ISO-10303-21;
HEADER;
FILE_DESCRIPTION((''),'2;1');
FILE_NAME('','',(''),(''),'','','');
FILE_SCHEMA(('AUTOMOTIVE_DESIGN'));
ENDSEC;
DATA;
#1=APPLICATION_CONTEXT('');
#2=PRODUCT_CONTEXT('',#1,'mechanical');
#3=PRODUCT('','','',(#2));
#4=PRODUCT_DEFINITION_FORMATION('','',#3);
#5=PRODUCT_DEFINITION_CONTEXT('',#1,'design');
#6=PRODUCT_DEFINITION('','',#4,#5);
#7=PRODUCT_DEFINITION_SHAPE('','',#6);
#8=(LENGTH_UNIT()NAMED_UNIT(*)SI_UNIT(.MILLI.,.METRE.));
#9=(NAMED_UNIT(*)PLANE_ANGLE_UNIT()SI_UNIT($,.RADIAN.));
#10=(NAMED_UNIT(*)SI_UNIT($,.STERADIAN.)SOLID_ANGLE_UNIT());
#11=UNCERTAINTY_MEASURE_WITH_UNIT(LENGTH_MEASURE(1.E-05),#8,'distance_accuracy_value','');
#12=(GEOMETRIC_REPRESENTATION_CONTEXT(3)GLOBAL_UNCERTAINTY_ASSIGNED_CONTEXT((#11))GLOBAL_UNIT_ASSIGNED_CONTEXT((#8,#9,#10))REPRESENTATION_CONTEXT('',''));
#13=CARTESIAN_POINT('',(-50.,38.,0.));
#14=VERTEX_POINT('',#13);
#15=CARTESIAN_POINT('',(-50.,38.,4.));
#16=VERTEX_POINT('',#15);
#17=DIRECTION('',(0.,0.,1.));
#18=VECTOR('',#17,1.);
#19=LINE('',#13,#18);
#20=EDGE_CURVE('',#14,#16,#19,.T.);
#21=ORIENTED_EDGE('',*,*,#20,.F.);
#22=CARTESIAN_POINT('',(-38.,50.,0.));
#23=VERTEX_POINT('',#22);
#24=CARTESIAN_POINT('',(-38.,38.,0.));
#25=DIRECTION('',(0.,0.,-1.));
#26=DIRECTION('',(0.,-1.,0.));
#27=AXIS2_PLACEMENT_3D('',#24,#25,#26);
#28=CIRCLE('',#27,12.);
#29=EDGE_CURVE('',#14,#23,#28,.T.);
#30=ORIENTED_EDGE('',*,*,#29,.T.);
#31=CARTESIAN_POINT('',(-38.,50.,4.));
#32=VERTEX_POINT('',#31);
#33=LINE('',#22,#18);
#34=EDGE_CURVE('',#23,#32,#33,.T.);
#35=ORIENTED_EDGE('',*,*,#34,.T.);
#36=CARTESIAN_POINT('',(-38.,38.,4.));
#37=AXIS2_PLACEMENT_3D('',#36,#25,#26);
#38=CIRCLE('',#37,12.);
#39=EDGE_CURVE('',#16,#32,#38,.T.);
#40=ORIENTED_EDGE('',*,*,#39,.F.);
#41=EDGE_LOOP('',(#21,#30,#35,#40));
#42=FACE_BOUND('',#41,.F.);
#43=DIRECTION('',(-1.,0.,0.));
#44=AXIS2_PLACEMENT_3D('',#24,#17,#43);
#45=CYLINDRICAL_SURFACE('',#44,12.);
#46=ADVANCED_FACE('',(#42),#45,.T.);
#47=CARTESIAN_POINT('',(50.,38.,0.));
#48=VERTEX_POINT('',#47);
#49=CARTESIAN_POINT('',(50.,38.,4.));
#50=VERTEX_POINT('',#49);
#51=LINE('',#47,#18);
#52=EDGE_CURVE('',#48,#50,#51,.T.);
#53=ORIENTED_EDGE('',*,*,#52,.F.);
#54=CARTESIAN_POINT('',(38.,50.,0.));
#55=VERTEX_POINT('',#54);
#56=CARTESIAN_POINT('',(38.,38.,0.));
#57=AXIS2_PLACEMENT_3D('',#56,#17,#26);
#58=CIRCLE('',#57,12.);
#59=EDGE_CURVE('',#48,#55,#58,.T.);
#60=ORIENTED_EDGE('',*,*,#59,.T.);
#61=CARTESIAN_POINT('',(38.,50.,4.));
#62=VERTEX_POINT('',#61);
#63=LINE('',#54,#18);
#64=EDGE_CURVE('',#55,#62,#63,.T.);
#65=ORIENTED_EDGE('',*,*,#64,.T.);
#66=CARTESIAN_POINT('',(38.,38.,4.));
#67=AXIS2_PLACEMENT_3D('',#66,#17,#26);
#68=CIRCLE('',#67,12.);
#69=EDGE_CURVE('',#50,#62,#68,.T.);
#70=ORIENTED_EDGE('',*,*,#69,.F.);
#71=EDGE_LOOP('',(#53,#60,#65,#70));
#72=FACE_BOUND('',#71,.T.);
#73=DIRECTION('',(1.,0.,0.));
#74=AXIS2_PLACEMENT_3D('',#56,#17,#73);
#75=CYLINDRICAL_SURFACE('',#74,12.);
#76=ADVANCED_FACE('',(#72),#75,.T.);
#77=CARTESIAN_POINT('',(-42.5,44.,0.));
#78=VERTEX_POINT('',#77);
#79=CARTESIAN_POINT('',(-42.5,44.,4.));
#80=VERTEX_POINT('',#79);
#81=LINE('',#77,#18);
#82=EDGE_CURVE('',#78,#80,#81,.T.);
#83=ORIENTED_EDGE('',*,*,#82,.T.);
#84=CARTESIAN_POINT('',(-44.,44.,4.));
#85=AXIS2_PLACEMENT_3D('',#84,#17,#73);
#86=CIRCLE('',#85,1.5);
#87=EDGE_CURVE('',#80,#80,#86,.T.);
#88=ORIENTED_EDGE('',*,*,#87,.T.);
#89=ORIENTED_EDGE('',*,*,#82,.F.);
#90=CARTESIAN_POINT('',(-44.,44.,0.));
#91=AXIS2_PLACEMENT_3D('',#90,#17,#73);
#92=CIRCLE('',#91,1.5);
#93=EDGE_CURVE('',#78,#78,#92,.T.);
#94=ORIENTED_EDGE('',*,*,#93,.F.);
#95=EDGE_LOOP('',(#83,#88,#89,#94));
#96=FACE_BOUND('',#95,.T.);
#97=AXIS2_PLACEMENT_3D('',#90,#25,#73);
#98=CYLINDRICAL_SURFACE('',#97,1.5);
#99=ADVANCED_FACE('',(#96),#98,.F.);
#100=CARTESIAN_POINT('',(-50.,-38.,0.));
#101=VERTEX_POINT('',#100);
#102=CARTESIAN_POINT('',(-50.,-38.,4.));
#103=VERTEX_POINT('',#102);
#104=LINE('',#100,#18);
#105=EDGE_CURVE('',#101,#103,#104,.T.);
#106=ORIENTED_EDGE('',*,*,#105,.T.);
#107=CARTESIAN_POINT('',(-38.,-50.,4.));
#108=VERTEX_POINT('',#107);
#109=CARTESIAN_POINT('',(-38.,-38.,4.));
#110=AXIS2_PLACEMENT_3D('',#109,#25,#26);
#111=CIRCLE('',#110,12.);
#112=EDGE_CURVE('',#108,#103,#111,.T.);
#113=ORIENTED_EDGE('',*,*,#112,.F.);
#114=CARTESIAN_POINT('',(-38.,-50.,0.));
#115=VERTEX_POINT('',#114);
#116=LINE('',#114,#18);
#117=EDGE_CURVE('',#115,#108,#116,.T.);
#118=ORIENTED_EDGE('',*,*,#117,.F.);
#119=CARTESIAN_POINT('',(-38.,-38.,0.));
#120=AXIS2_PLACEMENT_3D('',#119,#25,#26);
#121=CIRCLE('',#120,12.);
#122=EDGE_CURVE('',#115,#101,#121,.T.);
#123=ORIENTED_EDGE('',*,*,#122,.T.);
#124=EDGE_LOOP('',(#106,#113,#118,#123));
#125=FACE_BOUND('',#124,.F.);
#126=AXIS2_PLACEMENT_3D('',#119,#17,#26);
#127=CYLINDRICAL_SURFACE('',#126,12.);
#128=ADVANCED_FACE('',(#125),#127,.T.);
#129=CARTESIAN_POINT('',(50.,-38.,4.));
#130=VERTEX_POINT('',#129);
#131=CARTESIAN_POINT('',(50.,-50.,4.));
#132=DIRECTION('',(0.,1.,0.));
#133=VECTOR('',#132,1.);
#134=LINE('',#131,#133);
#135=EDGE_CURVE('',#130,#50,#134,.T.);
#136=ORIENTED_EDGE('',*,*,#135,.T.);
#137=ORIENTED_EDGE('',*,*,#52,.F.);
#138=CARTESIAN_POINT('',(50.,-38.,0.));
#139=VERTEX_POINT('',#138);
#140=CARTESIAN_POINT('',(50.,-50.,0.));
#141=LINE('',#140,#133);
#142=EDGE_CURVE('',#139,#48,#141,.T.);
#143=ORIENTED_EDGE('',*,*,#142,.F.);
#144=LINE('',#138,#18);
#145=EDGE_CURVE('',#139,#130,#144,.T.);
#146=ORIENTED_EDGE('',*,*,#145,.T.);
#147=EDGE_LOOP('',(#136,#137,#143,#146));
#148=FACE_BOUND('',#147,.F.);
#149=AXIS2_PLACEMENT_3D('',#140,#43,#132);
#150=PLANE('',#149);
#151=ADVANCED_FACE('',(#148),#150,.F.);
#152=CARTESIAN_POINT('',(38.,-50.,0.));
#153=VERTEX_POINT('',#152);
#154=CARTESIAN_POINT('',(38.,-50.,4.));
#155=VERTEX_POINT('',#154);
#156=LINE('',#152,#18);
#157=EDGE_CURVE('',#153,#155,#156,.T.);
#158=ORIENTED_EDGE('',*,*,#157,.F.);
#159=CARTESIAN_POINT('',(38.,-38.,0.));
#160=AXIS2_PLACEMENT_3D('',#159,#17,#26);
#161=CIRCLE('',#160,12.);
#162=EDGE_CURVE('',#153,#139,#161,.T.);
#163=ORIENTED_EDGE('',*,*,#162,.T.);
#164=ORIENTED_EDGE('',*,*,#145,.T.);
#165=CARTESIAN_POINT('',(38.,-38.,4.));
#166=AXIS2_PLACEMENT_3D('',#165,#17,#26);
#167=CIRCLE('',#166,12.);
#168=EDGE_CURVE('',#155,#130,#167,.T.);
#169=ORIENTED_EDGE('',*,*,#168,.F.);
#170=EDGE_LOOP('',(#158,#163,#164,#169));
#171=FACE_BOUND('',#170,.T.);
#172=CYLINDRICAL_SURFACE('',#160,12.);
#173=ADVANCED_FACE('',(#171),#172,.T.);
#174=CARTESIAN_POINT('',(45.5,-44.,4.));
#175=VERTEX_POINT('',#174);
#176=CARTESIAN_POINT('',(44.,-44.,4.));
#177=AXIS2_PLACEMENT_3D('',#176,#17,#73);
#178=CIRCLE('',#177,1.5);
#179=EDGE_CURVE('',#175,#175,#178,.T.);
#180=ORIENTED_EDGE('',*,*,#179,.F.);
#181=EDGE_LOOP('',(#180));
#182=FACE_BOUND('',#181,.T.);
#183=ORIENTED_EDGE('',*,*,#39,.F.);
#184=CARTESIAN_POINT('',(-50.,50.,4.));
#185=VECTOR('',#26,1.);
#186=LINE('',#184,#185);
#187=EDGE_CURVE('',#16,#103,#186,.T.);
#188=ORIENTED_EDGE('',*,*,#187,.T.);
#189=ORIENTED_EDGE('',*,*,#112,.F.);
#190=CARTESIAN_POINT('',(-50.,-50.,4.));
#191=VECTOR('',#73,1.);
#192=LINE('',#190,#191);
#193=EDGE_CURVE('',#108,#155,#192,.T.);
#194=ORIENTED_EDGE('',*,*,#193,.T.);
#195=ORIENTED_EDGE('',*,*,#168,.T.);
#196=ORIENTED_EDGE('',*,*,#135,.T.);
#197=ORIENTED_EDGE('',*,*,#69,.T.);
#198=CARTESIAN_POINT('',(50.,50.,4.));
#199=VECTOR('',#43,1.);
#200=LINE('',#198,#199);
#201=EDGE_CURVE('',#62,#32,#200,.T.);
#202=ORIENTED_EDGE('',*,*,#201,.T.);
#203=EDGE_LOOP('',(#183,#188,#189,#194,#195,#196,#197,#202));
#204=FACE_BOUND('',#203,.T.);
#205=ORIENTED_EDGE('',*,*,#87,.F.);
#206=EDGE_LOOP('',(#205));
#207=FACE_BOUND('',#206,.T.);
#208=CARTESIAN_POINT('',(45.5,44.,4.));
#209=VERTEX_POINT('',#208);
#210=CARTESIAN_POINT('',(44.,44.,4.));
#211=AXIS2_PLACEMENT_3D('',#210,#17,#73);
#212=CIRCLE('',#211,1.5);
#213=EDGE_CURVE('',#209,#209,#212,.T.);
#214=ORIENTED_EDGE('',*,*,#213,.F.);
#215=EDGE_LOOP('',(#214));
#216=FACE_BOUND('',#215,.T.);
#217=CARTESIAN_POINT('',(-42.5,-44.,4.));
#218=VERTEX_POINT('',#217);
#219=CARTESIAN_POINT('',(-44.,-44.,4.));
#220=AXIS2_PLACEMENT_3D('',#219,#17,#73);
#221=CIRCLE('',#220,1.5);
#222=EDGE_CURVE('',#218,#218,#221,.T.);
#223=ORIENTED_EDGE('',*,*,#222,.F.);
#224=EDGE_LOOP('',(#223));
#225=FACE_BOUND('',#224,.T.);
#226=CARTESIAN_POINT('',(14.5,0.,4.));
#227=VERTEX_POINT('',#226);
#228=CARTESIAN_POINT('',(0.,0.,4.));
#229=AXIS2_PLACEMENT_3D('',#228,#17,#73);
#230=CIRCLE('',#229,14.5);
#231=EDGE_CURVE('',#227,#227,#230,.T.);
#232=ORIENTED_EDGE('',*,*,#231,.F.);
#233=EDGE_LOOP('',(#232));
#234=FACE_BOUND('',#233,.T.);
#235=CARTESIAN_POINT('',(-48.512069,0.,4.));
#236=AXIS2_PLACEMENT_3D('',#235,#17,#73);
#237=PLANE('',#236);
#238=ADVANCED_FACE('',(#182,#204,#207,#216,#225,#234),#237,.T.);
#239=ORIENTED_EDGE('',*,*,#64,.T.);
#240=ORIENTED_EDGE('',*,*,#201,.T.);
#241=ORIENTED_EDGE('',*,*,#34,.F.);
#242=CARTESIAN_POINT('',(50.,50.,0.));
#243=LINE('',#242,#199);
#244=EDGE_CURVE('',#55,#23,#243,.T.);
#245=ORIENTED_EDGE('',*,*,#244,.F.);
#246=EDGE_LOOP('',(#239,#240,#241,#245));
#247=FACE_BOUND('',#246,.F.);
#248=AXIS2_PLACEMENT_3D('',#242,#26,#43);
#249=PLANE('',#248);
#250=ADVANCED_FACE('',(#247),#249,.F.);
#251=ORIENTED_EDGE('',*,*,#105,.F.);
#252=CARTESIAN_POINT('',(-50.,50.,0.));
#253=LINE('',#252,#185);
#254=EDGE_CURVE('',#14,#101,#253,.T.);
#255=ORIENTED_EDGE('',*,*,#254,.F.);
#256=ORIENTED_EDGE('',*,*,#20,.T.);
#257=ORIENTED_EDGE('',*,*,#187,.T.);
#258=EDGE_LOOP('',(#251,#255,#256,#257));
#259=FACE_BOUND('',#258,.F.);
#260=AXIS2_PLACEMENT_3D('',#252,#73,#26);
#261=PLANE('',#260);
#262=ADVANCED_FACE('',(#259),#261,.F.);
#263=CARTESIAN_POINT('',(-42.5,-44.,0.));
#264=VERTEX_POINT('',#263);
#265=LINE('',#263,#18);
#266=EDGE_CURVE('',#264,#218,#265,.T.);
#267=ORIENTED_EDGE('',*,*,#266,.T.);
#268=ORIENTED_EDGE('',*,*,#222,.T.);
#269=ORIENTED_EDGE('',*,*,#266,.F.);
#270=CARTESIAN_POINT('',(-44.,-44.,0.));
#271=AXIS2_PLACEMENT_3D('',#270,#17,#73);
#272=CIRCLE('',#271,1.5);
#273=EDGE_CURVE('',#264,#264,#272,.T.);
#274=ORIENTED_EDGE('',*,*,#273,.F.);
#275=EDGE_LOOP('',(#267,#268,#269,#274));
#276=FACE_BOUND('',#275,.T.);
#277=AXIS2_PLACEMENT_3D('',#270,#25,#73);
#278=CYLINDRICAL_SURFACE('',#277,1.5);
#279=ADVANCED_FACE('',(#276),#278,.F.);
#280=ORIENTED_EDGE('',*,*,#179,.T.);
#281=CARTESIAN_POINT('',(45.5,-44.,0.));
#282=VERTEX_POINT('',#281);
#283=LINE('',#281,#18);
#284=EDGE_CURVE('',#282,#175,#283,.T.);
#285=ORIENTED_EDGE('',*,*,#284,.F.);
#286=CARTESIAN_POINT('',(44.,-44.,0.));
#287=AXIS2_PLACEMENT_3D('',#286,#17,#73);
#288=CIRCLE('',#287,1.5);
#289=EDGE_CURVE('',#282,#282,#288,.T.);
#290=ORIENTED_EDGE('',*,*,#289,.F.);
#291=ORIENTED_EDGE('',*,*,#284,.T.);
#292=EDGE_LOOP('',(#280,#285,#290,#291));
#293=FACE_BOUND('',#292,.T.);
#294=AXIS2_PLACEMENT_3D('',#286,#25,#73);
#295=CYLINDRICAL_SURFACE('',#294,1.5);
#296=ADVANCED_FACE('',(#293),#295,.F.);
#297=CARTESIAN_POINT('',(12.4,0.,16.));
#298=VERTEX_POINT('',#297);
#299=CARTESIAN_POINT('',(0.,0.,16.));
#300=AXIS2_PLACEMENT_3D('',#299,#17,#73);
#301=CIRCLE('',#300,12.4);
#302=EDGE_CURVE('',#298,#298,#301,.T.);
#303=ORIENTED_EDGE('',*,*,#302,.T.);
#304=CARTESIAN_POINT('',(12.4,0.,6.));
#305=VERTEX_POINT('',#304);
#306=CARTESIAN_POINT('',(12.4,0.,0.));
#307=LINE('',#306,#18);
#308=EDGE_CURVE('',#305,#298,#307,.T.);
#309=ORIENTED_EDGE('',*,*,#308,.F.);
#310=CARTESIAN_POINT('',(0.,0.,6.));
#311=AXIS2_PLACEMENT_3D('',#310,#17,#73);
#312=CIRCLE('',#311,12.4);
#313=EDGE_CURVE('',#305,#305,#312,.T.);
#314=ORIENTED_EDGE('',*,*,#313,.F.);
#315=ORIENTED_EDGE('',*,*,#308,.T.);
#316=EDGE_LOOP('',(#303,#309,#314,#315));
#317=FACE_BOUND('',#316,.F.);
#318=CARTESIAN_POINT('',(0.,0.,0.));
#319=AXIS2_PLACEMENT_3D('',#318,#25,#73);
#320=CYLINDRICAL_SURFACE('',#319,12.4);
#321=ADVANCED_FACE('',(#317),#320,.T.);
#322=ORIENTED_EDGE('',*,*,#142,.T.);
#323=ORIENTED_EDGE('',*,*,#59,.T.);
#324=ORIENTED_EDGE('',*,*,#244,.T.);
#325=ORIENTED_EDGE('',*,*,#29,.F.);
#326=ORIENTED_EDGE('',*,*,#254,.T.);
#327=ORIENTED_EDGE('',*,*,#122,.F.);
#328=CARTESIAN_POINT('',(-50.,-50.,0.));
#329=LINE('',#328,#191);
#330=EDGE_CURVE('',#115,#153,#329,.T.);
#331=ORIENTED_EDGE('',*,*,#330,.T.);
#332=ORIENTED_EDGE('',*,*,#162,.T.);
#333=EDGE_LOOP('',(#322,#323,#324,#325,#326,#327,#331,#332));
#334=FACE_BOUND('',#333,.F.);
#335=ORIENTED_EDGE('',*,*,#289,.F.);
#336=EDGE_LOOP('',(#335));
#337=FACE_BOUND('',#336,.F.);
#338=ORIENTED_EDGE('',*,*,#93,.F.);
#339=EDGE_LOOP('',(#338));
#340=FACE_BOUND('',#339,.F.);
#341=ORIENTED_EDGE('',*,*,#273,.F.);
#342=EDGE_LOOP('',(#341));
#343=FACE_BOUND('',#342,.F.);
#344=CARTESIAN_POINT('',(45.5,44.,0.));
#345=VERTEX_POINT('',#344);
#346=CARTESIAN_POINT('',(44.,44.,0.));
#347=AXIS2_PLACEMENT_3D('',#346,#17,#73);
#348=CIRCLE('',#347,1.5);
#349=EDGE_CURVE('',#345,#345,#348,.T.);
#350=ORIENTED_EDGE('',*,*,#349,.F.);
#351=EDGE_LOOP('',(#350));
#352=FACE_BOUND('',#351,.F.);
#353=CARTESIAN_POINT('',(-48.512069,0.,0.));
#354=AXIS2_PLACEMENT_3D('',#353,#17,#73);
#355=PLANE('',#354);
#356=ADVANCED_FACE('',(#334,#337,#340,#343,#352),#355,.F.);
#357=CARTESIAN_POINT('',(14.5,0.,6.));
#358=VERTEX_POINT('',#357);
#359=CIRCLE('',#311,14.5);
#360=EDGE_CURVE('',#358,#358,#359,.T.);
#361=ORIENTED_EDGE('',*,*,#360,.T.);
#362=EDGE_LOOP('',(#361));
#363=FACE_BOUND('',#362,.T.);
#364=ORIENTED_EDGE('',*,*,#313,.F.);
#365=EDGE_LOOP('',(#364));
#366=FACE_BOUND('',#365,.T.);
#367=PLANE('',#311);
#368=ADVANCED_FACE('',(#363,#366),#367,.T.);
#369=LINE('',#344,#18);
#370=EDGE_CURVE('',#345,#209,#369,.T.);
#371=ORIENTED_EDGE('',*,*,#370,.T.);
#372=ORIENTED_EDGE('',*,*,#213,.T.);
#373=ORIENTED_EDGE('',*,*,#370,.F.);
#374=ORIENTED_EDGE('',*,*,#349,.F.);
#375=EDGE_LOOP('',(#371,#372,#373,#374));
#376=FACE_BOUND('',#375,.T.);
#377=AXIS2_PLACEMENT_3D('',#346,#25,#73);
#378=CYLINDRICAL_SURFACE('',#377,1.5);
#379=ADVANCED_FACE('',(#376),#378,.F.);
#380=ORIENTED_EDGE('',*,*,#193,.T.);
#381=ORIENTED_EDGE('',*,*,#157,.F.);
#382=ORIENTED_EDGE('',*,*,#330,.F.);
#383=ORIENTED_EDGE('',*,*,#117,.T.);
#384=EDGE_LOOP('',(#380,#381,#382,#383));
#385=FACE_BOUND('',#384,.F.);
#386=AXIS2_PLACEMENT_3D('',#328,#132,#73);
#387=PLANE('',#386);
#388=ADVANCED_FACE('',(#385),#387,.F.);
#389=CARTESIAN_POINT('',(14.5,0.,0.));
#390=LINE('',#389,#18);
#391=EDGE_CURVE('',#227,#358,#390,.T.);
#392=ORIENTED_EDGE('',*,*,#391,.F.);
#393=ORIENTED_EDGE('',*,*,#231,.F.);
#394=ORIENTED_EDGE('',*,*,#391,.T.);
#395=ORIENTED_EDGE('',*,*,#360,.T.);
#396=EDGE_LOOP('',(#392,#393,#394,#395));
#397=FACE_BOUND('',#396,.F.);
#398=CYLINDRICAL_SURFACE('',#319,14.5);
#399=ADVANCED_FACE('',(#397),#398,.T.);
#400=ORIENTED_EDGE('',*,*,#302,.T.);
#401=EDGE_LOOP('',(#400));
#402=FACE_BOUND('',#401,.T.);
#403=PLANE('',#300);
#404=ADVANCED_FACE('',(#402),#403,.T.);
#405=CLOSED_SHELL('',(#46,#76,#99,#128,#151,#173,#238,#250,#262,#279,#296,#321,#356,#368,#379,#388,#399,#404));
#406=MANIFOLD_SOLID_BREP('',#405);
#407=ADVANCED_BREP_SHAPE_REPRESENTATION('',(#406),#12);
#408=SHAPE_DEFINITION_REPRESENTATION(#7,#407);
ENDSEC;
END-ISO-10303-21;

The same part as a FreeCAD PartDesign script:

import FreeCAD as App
import Part
import Sketcher
Q = App.Units.Quantity


def edges_at(feature, points):
    """Names of the edges that pass closest to the given points."""
    edges = feature.Shape.Edges
    near = lambda p: min(range(len(edges)), key=lambda i: edges[i].distToShape(Part.Vertex(*p))[0])
    return sorted({f"Edge{near(p) + 1}" for p in points})


def add_polygon(sketch, points):
    """Adds a closed chain of lines whose ends are joined by coincident constraints."""
    first, n = sketch.GeometryCount, len(points)
    for a, b in zip(points, points[1:] + points[:1]):
        sketch.addGeometry(Part.LineSegment(App.Vector(*a, 0), App.Vector(*b, 0)), False)
    for i in range(n):
        sketch.addConstraint(Sketcher.Constraint("Coincident", first + i, 2, first + (i + 1) % n, 1))

doc = App.newDocument("Part")
body = doc.addObject("PartDesign::Body", "Body")

# Sketch on XY plane
sketch1 = body.newObject("Sketcher::SketchObject", "Sketch")
sketch1.AttachmentSupport = (doc.getObject("XY_Plane"), [""])
sketch1.MapMode = "FlatFace"
add_polygon(sketch1, [(-50, -50), (50, -50), (50, 50), (-50, 50)])  # lines 0-3
sketch1.addGeometry(Part.Circle(App.Vector(-44, -44, 0), App.Vector(0, 0, 1), 1.5), False)  # 4
sketch1.addGeometry(Part.Circle(App.Vector(44, -44, 0), App.Vector(0, 0, 1), 1.5), False)  # 5
sketch1.addGeometry(Part.Circle(App.Vector(-44, 44, 0), App.Vector(0, 0, 1), 1.5), False)  # 6
sketch1.addGeometry(Part.Circle(App.Vector(0, 0, 0), App.Vector(0, 0, 1), 14.5), False)  # 7
sketch1.addGeometry(Part.Circle(App.Vector(44, 44, 0), App.Vector(0, 0, 1), 1.5), False)  # 8
sketch1.addConstraint(Sketcher.Constraint("Horizontal", 0))
sketch1.addConstraint(Sketcher.Constraint("Vertical", 1))
sketch1.addConstraint(Sketcher.Constraint("Horizontal", 2))
sketch1.addConstraint(Sketcher.Constraint("Vertical", 3))
sketch1.addConstraint(Sketcher.Constraint("Coincident", 7, 3, -1, 1))
sketch1.addConstraint(Sketcher.Constraint("Equal", 4, 5))
sketch1.addConstraint(Sketcher.Constraint("Equal", 5, 6))
sketch1.addConstraint(Sketcher.Constraint("Equal", 6, 8))
sketch1.addConstraint(Sketcher.Constraint("Symmetric", 5, 3, 6, 3, -1, 1))
sketch1.addConstraint(Sketcher.Constraint("Symmetric", 4, 3, 8, 3, -1, 1))
sketch1.addConstraint(Sketcher.Constraint("Symmetric", 0, 2, 2, 2, -1, 1))
sketch1.addConstraint(Sketcher.Constraint("Symmetric", 4, 3, 5, 3, -2))
sketch1.addConstraint(Sketcher.Constraint("Equal", 2, 1))
sketch1.addConstraint(Sketcher.Constraint("Diameter", 4, Q("3 mm")))
sketch1.addConstraint(Sketcher.Constraint("Diameter", 7, Q("29 mm")))
sketch1.addConstraint(Sketcher.Constraint("DistanceX", 0, 1, 0, 2, Q("100 mm")))
sketch1.addConstraint(Sketcher.Constraint("DistanceX", 4, 3, -1, 1, Q("44 mm")))
sketch1.addConstraint(Sketcher.Constraint("DistanceY", 4, 3, -1, 1, Q("44 mm")))
pad1 = body.newObject("PartDesign::Pad", "Pad")
pad1.Profile = sketch1
pad1.Length = 4
doc.recompute()

fillet = body.newObject("PartDesign::Fillet", "Fillet")
fillet.Base = (pad1, edges_at(pad1, [
    (-50, 50, 2),
    (50, 50, 2),
    (50, -50, 2),
    (-50, -50, 2),
]))
fillet.Radius = 12

# Sketch on XY plane
sketch2 = body.newObject("Sketcher::SketchObject", "Sketch001")
sketch2.AttachmentSupport = (doc.getObject("XY_Plane"), [""])
sketch2.MapMode = "FlatFace"
sketch2.addGeometry(Part.Circle(App.Vector(0, 0, 0), App.Vector(0, 0, 1), 14.5), False)
sketch2.addGeometry(Part.Circle(App.Vector(0, 0, 0), App.Vector(0, 0, 1), 12.4), False)
sketch2.addConstraint(Sketcher.Constraint("Coincident", 0, 3, -1, 1))
sketch2.addConstraint(Sketcher.Constraint("Coincident", 1, 3, -1, 1))
sketch2.addConstraint(Sketcher.Constraint("Diameter", 0, Q("29 mm")))
sketch2.addConstraint(Sketcher.Constraint("Diameter", 1, Q("24.8 mm")))
pad2 = body.newObject("PartDesign::Pad", "Pad001")
pad2.Profile = sketch2
pad2.Length = 6

# Sketch on XY plane
sketch3 = body.newObject("Sketcher::SketchObject", "Sketch002")
sketch3.AttachmentSupport = (doc.getObject("XY_Plane"), [""])
sketch3.MapMode = "FlatFace"
sketch3.addGeometry(Part.Circle(App.Vector(0, 0, 0), App.Vector(0, 0, 1), 12.4), False)
sketch3.addConstraint(Sketcher.Constraint("Coincident", 0, 3, -1, 1))
sketch3.addConstraint(Sketcher.Constraint("Diameter", 0, Q("24.8 mm")))
pad3 = body.newObject("PartDesign::Pad", "Pad002")
pad3.Profile = sketch3
pad3.Length = 16

doc.recompute()
